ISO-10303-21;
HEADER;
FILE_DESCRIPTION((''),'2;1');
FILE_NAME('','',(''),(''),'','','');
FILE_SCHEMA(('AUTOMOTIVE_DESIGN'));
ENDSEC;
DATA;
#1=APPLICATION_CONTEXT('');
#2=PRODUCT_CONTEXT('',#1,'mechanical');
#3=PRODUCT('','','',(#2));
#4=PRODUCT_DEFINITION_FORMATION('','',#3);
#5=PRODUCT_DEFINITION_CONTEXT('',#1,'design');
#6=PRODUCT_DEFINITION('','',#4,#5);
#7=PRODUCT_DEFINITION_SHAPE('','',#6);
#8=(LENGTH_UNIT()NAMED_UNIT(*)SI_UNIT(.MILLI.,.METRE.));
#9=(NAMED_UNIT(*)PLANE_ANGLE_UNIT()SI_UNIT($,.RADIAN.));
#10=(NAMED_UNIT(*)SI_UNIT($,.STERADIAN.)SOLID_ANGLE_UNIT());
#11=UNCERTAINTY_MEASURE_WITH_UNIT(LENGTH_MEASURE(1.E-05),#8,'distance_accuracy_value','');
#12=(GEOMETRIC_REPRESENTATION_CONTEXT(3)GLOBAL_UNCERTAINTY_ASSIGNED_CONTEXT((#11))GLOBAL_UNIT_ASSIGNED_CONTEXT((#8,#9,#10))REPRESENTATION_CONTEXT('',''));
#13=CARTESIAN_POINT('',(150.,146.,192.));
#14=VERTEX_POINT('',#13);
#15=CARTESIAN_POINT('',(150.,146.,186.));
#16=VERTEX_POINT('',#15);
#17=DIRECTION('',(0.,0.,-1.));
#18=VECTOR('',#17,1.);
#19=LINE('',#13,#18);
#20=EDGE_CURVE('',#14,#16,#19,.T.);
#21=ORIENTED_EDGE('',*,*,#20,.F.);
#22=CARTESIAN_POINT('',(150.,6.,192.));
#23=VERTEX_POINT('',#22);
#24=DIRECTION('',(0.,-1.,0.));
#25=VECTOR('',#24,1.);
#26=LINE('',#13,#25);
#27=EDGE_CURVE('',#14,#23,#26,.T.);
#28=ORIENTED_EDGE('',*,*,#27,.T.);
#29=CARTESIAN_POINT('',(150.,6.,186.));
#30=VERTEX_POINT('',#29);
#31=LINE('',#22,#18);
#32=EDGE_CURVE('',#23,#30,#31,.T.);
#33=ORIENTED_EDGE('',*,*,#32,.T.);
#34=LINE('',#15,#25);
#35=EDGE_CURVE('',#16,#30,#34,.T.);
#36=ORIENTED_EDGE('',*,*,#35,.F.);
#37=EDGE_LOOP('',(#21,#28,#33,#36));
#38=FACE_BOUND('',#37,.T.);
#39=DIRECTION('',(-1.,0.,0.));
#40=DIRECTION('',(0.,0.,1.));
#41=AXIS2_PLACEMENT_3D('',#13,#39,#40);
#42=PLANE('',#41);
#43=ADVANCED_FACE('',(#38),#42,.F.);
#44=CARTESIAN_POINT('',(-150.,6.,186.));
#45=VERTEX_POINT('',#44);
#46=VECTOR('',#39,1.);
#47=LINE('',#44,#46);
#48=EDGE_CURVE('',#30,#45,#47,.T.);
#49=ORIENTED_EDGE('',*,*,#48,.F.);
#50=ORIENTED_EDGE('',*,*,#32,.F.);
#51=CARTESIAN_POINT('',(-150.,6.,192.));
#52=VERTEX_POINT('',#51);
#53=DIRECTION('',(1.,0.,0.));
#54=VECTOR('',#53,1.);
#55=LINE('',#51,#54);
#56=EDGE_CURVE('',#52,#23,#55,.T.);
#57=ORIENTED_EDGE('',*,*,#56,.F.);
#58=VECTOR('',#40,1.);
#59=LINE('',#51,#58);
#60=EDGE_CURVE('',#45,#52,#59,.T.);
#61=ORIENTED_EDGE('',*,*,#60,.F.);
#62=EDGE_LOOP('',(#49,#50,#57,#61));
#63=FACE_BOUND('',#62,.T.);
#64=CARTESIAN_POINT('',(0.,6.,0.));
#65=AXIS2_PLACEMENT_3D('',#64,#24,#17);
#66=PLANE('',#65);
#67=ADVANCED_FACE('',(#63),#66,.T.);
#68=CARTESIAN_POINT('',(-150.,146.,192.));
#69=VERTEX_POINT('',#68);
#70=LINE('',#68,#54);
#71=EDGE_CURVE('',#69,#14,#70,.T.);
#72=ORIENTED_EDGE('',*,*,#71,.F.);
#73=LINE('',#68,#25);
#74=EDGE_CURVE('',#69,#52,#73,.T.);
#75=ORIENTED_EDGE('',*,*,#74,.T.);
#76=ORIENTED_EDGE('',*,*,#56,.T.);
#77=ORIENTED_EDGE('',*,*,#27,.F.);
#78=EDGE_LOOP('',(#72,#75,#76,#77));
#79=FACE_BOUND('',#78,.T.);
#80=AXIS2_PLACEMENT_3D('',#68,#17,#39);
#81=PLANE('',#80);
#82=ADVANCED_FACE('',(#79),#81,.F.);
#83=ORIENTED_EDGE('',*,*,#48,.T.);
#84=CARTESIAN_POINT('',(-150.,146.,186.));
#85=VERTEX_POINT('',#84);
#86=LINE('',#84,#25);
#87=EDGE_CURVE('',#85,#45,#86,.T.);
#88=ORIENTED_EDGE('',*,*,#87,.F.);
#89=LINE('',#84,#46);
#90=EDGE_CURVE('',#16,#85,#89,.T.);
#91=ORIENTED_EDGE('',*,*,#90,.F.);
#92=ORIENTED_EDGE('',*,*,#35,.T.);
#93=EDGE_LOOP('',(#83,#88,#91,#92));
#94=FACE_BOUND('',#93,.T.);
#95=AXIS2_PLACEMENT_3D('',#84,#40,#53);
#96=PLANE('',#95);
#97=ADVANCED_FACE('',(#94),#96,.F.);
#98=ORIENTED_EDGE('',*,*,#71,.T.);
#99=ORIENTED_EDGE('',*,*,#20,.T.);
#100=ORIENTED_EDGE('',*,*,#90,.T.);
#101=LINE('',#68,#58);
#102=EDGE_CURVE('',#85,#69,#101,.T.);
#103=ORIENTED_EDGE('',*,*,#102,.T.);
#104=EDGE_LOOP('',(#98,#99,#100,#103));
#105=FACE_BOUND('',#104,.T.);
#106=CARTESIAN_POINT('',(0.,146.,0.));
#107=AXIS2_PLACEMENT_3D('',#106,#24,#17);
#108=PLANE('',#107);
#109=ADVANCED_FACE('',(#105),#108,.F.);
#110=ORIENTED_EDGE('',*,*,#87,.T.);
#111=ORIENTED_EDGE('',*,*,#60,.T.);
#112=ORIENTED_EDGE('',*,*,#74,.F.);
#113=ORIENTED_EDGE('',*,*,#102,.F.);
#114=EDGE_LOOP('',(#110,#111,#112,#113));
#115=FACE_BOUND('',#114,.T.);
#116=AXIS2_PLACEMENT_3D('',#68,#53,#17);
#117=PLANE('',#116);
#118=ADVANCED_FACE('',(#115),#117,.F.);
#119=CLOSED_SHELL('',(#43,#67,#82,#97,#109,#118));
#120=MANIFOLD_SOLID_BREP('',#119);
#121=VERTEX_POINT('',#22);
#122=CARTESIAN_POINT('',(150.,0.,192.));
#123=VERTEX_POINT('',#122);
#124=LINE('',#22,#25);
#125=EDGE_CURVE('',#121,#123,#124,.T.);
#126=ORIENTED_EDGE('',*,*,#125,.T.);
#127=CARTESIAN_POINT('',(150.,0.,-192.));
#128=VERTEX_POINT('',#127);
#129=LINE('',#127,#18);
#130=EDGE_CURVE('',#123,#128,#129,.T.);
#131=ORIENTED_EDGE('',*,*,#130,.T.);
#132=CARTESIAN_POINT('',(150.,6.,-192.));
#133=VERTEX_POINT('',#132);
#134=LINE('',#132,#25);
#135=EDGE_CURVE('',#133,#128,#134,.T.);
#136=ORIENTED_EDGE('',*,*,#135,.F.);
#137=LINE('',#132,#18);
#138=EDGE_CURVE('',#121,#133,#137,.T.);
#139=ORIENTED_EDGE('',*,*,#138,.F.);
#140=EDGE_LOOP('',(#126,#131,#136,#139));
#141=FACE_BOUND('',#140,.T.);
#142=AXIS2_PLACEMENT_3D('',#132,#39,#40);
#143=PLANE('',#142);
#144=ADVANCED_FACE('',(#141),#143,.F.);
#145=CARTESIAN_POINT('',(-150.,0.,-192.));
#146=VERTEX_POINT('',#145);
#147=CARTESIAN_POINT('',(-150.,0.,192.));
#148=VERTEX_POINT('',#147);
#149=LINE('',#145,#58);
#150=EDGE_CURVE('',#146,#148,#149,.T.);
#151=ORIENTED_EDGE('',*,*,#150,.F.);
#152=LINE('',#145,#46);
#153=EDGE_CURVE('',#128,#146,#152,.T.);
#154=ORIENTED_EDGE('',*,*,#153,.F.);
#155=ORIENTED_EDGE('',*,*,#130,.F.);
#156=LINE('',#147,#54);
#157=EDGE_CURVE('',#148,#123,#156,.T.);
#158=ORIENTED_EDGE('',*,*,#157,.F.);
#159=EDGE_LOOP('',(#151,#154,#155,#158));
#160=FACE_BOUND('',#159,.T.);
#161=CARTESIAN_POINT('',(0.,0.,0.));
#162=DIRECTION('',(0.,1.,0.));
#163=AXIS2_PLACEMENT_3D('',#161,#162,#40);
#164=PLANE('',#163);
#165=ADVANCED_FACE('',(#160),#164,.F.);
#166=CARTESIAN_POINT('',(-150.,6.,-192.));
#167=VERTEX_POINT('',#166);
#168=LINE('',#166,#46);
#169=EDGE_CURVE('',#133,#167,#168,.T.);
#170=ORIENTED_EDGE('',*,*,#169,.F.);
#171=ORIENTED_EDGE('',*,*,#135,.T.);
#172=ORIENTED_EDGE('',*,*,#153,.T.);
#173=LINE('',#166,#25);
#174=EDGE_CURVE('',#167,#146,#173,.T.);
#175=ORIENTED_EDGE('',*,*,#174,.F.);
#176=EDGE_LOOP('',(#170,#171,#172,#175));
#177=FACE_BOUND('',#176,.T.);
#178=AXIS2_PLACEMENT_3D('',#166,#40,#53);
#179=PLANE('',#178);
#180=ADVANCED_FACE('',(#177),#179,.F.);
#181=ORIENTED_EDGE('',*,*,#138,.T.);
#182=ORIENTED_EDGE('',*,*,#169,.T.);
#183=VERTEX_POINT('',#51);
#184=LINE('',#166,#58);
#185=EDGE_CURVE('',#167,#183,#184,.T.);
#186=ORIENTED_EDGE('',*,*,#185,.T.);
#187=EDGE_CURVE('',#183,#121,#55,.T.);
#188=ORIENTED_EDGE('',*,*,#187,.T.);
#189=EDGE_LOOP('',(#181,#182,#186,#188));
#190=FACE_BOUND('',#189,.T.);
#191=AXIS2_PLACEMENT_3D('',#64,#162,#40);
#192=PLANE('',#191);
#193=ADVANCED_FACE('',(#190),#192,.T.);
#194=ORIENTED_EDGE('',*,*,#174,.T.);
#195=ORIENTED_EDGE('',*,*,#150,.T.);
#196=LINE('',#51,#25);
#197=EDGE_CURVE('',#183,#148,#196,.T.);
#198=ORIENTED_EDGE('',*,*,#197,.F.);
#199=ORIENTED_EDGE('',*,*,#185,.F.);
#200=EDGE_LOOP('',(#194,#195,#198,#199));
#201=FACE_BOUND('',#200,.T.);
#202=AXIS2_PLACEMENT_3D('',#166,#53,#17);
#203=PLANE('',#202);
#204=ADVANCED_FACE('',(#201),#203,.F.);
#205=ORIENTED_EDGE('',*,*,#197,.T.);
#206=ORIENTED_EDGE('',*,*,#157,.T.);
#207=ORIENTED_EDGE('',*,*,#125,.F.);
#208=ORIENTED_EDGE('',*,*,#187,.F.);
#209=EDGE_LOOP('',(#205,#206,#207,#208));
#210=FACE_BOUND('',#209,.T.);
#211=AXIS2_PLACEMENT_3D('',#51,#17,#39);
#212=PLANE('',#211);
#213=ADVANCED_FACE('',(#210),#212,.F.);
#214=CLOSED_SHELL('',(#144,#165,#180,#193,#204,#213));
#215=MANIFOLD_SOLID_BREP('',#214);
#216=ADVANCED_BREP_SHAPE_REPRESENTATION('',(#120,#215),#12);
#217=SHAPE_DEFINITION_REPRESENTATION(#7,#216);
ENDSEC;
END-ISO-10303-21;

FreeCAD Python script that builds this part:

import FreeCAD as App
import Part
import Sketcher

V = App.Vector


def add_polygon(sketch, points):
    """Adds a closed chain of lines whose ends are joined by coincident constraints."""
    first, n = sketch.GeometryCount, len(points)
    for a, b in zip(points, points[1:] + points[:1]):
        sketch.addGeometry(Part.LineSegment(App.Vector(*a, 0), App.Vector(*b, 0)), False)
    for i in range(n):
        sketch.addConstraint(Sketcher.Constraint("Coincident", first + i, 2, first + (i + 1) % n, 1))

doc = App.newDocument("Part")
body = doc.addObject("PartDesign::Body", "Body")

sketch1 = doc.addObject("Sketcher::SketchObject", "Sketch")
body.addObject(sketch1)
sketch1.AttachmentSupport = (doc.XZ_Plane, [""])
sketch1.MapMode = "FlatFace"
add_polygon(sketch1, [(-150, -192), (-150, 192), (150, 192), (150, -192)])
sketch1.addConstraint(Sketcher.Constraint("Vertical", 0))
sketch1.addConstraint(Sketcher.Constraint("Horizontal", 1))
sketch1.addConstraint(Sketcher.Constraint("Vertical", 2))
sketch1.addConstraint(Sketcher.Constraint("Horizontal", 3))
sketch1.addConstraint(Sketcher.Constraint("Symmetric", 0, 2, 2, 2, -1, 1))
sketch1.addConstraint(Sketcher.Constraint("DistanceX", 1, 1, 1, 2, 300.0))
sketch1.addConstraint(Sketcher.Constraint("DistanceY", 0, 1, 0, 2, 384.0))
pad1 = doc.addObject("PartDesign::Pad", "Pad")
body.addObject(pad1)
pad1.Profile = sketch1
pad1.Length = 6
pad1.Reversed = True
body2 = doc.addObject("PartDesign::Body", "Body001")

sketch2 = doc.addObject("Sketcher::SketchObject", "Sketch001")
body2.addObject(sketch2)
sketch2.AttachmentSupport = (doc.getObject("XZ_Plane001"), [""])
sketch2.MapMode = "FlatFace"
sketch2.AttachmentOffset = App.Placement(V(0, 0, -6), App.Rotation())
add_polygon(sketch2, [(-150, 186), (-150, 192), (150, 192), (150, 186)])
sketch2.addConstraint(Sketcher.Constraint("Vertical", 0))
sketch2.addConstraint(Sketcher.Constraint("Horizontal", 1))
sketch2.addConstraint(Sketcher.Constraint("Vertical", 2))
sketch2.addConstraint(Sketcher.Constraint("Horizontal", 3))
sketch2.addConstraint(Sketcher.Constraint("DistanceX", 1, 1, 1, 2, 300.0))
sketch2.addConstraint(Sketcher.Constraint("DistanceY", 0, 1, 0, 2, 6.0))
sketch2.addConstraint(Sketcher.Constraint("DistanceX", 0, 2, -1, 1, 150.0))
sketch2.addConstraint(Sketcher.Constraint("DistanceY", -1, 1, 0, 2, 192.0))
pad2 = doc.addObject("PartDesign::Pad", "Pad001")
body2.addObject(pad2)
pad2.Profile = sketch2
pad2.Length = 140
pad2.Reversed = True

doc.recompute()
